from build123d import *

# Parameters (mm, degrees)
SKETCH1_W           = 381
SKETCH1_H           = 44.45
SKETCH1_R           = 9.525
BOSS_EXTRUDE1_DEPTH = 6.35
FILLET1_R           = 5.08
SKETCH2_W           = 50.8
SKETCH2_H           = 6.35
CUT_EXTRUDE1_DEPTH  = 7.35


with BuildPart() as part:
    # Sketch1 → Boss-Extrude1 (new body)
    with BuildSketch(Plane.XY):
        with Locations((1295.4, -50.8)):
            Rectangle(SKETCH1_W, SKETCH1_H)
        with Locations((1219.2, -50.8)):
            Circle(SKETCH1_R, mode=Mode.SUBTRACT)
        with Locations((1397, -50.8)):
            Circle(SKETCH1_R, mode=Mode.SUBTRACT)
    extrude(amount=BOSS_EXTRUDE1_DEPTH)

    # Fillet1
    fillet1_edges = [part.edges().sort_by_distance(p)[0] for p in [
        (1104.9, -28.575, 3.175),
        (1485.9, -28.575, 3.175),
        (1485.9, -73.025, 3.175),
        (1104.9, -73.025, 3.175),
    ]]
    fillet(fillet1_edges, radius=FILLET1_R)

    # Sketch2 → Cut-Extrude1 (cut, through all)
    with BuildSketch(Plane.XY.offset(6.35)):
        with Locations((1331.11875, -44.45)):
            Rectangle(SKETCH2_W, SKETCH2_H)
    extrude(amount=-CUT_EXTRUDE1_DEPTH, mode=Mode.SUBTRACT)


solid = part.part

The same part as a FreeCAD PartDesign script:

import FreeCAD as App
import Part
import Sketcher
Q = App.Units.Quantity


def edges_at(feature, points):
    """Names of the edges that pass closest to the given points."""
    edges = feature.Shape.Edges
    near = lambda p: min(range(len(edges)), key=lambda i: edges[i].distToShape(Part.Vertex(*p))[0])
    return sorted({f"Edge{near(p) + 1}" for p in points})

doc = App.newDocument("Part")
body = doc.addObject("PartDesign::Body", "Body")

# Sketch on XY plane
sketch1 = body.newObject("Sketcher::SketchObject", "Sketch")
sketch1.AttachmentSupport = (doc.getObject("XY_Plane"), [""])
sketch1.MapMode = "FlatFace"
sketch1.addGeometry(Part.LineSegment(App.Vector(1105, -29, 0), App.Vector(1105, -73, 0)), False)
sketch1.addGeometry(Part.LineSegment(App.Vector(1105, -73, 0), App.Vector(1486, -73, 0)), False)
sketch1.addGeometry(Part.LineSegment(App.Vector(1486, -73, 0), App.Vector(1486, -29, 0)), False)
sketch1.addGeometry(Part.LineSegment(App.Vector(1486, -29, 0), App.Vector(1105, -29, 0)), False)
sketch1.addGeometry(Part.Circle(App.Vector(1219, -51, 0), App.Vector(0, 0, 1), 10), False)
sketch1.addGeometry(Part.Circle(App.Vector(1397, -51, 0), App.Vector(0, 0, 1), 10), False)
sketch1.addConstraint(Sketcher.Constraint("Coincident", 0, 2, 1, 1))
sketch1.addConstraint(Sketcher.Constraint("Coincident", 1, 2, 2, 1))
sketch1.addConstraint(Sketcher.Constraint("Coincident", 2, 2, 3, 1))
sketch1.addConstraint(Sketcher.Constraint("Coincident", 3, 2, 0, 1))
sketch1.addConstraint(Sketcher.Constraint("Vertical", 0))
sketch1.addConstraint(Sketcher.Constraint("Horizontal", 1))
sketch1.addConstraint(Sketcher.Constraint("Vertical", 2))
sketch1.addConstraint(Sketcher.Constraint("Horizontal", 3))
sketch1.addConstraint(Sketcher.Constraint("Equal", 4, 5))
sketch1.addConstraint(Sketcher.Constraint("Horizontal", 4, 3, 5, 3))
sketch1.addConstraint(Sketcher.Constraint("Diameter", 4, Q("0.75 in")))
sketch1.addConstraint(Sketcher.Constraint("DistanceX", 1, 1, 1, 2, Q("15 in")))
sketch1.addConstraint(Sketcher.Constraint("DistanceX", -1, 1, 4, 3, Q("48 in")))
sketch1.addConstraint(Sketcher.Constraint("DistanceY", 4, 3, -1, 1, Q("2 in")))
sketch1.addConstraint(Sketcher.Constraint("DistanceX", -1, 1, 5, 3, Q("55 in")))
sketch1.addConstraint(Sketcher.Constraint("DistanceY", 0, 2, 0, 1, Q("1.75 in")))
sketch1.addConstraint(Sketcher.Constraint("DistanceX", -1, 1, 0, 2, Q("43.5 in")))
sketch1.addConstraint(Sketcher.Constraint("DistanceY", 0, 2, -1, 1, Q("2.875 in")))
pad1 = body.newObject("PartDesign::Pad", "Pad")
pad1.Profile = sketch1
pad1.Length = Q("0.25 in")
doc.recompute()

fillet = body.newObject("PartDesign::Fillet", "Fillet")
fillet.Base = (pad1, edges_at(pad1, [
    (1104.9, -28.575, 3.175),
    (1485.9, -28.575, 3.175),
    (1485.9, -73.025, 3.175),
    (1104.9, -73.025, 3.175),
]))
fillet.Radius = Q("0.2 in")

# Sketch on XY plane
sketch2 = body.newObject("Sketcher::SketchObject", "Sketch001")
sketch2.AttachmentSupport = (doc.getObject("XY_Plane"), [""])
sketch2.MapMode = "FlatFace"
sketch2.AttachmentOffset = App.Placement(App.Vector(0, 0, 0.25 * 25.4), App.Rotation())
sketch2.addGeometry(Part.LineSegment(App.Vector(1306, -41, 0), App.Vector(1306, -48, 0)), False)
sketch2.addGeometry(Part.LineSegment(App.Vector(1306, -48, 0), App.Vector(1357, -48, 0)), False)
sketch2.addGeometry(Part.LineSegment(App.Vector(1357, -48, 0), App.Vector(1357, -41, 0)), False)
sketch2.addGeometry(Part.LineSegment(App.Vector(1357, -41, 0), App.Vector(1306, -41, 0)), False)
sketch2.addConstraint(Sketcher.Constraint("Coincident", 0, 2, 1, 1))
sketch2.addConstraint(Sketcher.Constraint("Coincident", 1, 2, 2, 1))
sketch2.addConstraint(Sketcher.Constraint("Coincident", 2, 2, 3, 1))
sketch2.addConstraint(Sketcher.Constraint("Coincident", 3, 2, 0, 1))
sketch2.addConstraint(Sketcher.Constraint("Vertical", 0))
sketch2.addConstraint(Sketcher.Constraint("Horizontal", 1))
sketch2.addConstraint(Sketcher.Constraint("Vertical", 2))
sketch2.addConstraint(Sketcher.Constraint("Horizontal", 3))
sketch2.addConstraint(Sketcher.Constraint("DistanceX", 1, 1, 1, 2, Q("2 in")))
sketch2.addConstraint(Sketcher.Constraint("DistanceY", 0, 2, 0, 1, Q("0.25 in")))
sketch2.addConstraint(Sketcher.Constraint("DistanceX", -1, 1, 0, 2, Q("51.40625 in")))
sketch2.addConstraint(Sketcher.Constraint("DistanceY", 0, 2, -1, 1, Q("1.875 in")))
pocket1 = body.newObject("PartDesign::Pocket", "Pocket")
pocket1.Profile = sketch2
pocket1.Type = "ThroughAll"

doc.recompute()
